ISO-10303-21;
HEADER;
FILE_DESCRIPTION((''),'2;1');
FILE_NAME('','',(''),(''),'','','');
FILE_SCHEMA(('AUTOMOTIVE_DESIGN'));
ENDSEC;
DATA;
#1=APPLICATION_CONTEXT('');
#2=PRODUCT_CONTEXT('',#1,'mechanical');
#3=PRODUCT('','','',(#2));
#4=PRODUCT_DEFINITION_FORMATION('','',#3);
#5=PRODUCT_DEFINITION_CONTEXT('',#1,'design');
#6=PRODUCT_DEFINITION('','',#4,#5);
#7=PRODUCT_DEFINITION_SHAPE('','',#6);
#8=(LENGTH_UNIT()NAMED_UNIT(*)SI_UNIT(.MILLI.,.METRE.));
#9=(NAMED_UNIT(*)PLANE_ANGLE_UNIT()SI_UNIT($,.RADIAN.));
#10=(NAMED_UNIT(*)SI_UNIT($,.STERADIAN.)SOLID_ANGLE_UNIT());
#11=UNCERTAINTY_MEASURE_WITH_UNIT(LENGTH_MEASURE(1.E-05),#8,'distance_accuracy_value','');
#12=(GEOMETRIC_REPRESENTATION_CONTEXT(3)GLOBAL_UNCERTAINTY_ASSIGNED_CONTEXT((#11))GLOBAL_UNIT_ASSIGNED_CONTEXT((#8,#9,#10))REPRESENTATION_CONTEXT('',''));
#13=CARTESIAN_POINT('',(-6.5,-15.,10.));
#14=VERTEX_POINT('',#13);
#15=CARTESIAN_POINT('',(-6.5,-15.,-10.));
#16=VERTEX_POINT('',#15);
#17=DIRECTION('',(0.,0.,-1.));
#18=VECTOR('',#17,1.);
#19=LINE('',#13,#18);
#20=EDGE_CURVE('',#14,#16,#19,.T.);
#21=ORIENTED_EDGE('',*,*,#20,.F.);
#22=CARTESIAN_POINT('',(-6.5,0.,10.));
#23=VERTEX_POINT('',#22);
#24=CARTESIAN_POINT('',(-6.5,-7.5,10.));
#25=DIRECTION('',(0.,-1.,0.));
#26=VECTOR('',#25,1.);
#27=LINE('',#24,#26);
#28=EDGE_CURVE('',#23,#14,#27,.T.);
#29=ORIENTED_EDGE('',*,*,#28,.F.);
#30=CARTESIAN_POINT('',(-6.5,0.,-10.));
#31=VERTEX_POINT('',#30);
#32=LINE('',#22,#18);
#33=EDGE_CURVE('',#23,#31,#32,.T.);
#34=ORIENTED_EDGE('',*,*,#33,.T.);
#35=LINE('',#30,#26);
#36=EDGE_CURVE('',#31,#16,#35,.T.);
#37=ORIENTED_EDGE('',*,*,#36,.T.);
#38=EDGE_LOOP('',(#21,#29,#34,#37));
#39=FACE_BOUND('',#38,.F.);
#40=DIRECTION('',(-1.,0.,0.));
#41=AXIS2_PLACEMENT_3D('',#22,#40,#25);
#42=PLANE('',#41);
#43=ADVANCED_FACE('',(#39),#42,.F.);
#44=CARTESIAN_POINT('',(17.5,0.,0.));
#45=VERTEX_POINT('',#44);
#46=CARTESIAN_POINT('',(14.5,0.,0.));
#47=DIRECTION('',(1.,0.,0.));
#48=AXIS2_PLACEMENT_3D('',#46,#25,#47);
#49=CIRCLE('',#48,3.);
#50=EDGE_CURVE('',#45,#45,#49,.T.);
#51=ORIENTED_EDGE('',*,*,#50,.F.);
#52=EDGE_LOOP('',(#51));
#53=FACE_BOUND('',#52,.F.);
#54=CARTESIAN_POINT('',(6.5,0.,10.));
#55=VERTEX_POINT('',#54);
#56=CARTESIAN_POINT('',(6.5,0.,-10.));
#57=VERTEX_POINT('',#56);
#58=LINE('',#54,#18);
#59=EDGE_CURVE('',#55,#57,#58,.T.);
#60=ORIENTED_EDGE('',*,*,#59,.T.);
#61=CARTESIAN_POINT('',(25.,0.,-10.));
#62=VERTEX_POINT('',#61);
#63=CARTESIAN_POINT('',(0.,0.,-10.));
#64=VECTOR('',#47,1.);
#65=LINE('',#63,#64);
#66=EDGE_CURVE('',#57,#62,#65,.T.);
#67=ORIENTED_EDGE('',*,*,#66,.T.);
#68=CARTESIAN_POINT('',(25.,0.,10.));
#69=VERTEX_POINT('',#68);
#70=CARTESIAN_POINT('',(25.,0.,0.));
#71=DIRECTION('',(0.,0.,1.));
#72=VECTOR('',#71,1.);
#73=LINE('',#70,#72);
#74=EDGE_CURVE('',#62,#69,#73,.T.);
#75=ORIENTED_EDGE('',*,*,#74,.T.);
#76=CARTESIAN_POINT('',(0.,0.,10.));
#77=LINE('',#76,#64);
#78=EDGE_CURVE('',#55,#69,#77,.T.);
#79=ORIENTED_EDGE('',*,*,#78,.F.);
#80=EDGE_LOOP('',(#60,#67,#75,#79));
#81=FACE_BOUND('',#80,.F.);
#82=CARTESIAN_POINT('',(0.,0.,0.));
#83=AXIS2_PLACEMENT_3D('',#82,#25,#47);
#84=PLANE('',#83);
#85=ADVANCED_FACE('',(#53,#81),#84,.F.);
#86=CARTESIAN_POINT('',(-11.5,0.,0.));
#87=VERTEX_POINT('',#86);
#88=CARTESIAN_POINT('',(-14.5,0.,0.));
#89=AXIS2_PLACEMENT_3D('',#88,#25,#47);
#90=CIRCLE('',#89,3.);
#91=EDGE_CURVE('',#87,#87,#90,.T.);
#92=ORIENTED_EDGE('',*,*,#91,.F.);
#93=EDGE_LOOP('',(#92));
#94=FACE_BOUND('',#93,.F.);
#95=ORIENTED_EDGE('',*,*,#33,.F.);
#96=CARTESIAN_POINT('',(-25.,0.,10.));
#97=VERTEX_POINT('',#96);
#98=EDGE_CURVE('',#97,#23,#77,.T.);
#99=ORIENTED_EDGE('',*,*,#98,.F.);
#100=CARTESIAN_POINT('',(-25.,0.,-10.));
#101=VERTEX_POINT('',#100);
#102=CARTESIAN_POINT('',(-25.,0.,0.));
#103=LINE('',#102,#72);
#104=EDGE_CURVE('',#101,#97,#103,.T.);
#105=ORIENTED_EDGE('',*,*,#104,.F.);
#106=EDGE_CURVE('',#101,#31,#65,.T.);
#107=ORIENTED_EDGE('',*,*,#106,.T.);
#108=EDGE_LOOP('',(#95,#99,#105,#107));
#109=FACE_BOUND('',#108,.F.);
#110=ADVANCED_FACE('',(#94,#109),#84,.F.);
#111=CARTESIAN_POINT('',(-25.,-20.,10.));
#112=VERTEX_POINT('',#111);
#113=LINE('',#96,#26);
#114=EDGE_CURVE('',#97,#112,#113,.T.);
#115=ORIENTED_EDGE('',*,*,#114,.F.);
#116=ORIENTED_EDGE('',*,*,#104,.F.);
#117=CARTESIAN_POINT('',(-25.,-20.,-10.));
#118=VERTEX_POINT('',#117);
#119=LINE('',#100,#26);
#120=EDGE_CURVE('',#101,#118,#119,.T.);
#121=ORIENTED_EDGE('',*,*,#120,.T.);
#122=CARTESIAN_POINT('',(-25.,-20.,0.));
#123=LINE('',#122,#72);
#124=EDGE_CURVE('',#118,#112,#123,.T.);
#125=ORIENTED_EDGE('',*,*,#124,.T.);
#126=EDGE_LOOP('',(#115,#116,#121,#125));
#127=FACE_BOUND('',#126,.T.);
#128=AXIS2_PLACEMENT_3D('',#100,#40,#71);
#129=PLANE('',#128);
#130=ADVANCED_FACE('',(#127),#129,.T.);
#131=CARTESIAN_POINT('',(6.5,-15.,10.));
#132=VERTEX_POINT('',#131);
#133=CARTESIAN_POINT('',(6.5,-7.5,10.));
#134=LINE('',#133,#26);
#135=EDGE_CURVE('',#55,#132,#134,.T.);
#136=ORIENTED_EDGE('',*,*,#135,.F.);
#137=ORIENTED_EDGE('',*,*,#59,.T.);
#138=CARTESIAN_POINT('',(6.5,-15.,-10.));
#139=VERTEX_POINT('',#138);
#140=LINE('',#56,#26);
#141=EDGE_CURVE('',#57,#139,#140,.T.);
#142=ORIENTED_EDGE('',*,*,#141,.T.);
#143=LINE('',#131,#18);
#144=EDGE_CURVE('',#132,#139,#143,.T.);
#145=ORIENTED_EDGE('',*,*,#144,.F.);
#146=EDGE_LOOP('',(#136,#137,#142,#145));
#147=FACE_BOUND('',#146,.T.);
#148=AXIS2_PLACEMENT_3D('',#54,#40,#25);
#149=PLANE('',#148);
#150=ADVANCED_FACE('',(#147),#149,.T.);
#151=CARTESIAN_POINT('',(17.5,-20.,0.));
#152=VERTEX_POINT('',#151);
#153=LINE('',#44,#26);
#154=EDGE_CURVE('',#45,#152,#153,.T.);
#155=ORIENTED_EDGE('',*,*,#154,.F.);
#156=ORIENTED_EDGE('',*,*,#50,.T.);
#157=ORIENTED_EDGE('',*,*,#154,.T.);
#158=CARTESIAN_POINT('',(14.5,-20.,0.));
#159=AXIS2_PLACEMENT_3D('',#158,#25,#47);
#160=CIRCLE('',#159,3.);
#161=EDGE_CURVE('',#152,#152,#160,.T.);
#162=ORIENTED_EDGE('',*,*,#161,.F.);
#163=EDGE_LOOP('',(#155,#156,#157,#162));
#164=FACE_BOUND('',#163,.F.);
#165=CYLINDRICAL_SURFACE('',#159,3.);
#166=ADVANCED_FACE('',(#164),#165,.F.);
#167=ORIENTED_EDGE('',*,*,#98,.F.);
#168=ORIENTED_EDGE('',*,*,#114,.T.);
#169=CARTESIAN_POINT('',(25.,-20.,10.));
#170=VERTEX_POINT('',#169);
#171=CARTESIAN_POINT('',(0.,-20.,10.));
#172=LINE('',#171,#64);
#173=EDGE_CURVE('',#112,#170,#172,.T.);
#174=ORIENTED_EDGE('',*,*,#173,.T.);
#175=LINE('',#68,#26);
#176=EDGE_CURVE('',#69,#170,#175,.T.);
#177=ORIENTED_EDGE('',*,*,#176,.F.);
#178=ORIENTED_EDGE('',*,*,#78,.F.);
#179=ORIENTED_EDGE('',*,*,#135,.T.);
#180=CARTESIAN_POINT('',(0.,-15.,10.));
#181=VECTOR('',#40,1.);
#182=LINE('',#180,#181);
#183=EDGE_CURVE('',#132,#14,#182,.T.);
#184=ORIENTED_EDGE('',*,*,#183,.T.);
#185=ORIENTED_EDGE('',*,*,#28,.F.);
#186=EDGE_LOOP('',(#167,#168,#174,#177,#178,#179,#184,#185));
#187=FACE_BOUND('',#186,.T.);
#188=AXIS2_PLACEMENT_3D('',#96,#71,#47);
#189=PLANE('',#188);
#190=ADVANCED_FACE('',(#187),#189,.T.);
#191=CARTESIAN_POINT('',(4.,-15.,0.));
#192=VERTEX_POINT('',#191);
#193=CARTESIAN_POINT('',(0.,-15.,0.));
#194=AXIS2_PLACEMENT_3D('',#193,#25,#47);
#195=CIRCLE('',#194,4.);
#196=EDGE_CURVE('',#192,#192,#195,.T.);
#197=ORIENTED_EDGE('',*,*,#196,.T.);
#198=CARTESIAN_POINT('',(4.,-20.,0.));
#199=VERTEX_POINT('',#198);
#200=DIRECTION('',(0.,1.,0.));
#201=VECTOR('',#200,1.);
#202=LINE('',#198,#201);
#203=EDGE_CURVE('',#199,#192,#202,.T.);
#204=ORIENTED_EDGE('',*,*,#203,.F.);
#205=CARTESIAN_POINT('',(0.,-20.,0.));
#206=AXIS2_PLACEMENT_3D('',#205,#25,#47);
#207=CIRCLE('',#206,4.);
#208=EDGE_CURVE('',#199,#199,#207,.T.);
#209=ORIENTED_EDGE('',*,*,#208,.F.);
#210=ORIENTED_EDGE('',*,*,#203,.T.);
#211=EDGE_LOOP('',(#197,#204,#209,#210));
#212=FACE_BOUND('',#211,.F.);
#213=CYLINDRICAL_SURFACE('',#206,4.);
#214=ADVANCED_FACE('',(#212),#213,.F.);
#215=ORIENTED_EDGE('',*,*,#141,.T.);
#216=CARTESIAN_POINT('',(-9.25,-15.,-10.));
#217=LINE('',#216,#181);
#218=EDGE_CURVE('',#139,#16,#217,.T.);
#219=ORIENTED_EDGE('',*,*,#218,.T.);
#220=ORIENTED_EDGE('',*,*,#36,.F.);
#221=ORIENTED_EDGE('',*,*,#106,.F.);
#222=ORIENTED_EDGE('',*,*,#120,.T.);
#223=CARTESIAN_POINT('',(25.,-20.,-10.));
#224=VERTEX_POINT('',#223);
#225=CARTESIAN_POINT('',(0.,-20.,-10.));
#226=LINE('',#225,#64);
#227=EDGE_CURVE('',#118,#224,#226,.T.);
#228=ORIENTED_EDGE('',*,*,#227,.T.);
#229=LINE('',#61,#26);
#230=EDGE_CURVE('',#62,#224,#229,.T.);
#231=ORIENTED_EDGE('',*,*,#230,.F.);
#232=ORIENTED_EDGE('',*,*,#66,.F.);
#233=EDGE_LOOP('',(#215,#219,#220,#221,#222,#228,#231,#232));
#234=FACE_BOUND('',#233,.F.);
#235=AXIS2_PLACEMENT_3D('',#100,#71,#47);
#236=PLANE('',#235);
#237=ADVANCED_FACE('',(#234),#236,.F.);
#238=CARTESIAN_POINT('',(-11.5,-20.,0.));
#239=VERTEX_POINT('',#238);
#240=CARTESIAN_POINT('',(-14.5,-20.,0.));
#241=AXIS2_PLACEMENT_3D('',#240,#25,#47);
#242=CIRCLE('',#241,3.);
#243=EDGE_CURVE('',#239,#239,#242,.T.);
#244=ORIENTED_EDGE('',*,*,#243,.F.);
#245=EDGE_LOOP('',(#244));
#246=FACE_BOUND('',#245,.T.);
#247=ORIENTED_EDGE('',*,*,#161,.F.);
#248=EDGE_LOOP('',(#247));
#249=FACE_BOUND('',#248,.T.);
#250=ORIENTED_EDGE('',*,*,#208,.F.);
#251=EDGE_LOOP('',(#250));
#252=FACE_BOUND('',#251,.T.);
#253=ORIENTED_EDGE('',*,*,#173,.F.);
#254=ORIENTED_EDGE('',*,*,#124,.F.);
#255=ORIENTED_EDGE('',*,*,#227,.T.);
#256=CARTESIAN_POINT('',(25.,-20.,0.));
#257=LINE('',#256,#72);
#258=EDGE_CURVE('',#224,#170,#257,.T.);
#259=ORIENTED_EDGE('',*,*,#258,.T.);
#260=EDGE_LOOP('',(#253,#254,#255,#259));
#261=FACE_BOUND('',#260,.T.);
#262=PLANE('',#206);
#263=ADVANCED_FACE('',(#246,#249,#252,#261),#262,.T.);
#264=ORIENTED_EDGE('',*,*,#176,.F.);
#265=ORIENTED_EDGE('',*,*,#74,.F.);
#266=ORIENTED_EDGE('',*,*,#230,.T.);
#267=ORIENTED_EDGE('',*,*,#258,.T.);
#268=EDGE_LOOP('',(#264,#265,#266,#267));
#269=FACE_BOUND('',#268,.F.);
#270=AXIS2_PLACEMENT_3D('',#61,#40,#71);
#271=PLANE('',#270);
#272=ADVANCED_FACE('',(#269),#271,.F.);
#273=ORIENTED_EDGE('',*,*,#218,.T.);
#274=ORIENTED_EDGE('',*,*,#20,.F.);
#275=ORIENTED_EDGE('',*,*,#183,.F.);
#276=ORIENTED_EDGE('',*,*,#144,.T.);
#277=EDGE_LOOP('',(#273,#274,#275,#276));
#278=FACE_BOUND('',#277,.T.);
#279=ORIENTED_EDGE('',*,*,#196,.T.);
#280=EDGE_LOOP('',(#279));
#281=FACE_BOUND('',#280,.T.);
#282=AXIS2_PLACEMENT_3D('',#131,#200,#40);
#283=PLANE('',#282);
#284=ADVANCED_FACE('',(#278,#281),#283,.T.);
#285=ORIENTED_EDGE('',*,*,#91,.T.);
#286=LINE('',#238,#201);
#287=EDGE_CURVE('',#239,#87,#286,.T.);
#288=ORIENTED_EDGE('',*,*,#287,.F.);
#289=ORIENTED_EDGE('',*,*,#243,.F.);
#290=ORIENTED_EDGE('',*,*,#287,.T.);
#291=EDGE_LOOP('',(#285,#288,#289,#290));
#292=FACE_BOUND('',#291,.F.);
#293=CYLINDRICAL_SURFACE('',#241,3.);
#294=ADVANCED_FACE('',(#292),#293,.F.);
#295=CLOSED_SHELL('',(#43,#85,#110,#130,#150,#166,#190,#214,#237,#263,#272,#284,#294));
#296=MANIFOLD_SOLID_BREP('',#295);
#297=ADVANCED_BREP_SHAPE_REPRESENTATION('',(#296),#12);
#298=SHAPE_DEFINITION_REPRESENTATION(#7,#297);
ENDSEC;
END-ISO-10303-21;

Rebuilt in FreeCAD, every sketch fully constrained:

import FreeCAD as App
import Part
import Sketcher
Q = App.Units.Quantity

doc = App.newDocument("Part")
body = doc.addObject("PartDesign::Body", "Body")

sketch1 = body.newObject("Sketcher::SketchObject", "Sketch")
sketch1.AttachmentSupport = (doc.getObject("XZ_Plane"), [""])
sketch1.MapMode = "FlatFace"
sketch1.addGeometry(Part.LineSegment(App.Vector(-25, 10, 0), App.Vector(-25, -10, 0)), False)
sketch1.addGeometry(Part.LineSegment(App.Vector(-25, -10, 0), App.Vector(25, -10, 0)), False)
sketch1.addGeometry(Part.LineSegment(App.Vector(25, -10, 0), App.Vector(25, 10, 0)), False)
sketch1.addGeometry(Part.LineSegment(App.Vector(25, 10, 0), App.Vector(-25, 10, 0)), False)
sketch1.addConstraint(Sketcher.Constraint("Coincident", 0, 2, 1, 1))
sketch1.addConstraint(Sketcher.Constraint("Coincident", 1, 2, 2, 1))
sketch1.addConstraint(Sketcher.Constraint("Coincident", 2, 2, 3, 1))
sketch1.addConstraint(Sketcher.Constraint("Coincident", 3, 2, 0, 1))
sketch1.addConstraint(Sketcher.Constraint("Vertical", 0))
sketch1.addConstraint(Sketcher.Constraint("Horizontal", 1))
sketch1.addConstraint(Sketcher.Constraint("Vertical", 2))
sketch1.addConstraint(Sketcher.Constraint("Horizontal", 3))
sketch1.addConstraint(Sketcher.Constraint("Symmetric", 0, 2, 2, 2, -1, 1))
sketch1.addConstraint(Sketcher.Constraint("DistanceX", 1, 1, 1, 2, Q("50 mm")))
sketch1.addConstraint(Sketcher.Constraint("DistanceY", 0, 2, 0, 1, Q("20 mm")))
pad1 = body.newObject("PartDesign::Pad", "Pad")
pad1.Profile = sketch1
pad1.Length = 20

sketch2 = body.newObject("Sketcher::SketchObject", "Sketch001")
sketch2.AttachmentSupport = (doc.getObject("XY_Plane"), [""])
sketch2.MapMode = "FlatFace"
sketch2.AttachmentOffset = App.Placement(App.Vector(0, 0, 10), App.Rotation())
sketch2.addGeometry(Part.LineSegment(App.Vector(6, -15, 0), App.Vector(6, 0, 0)), False)
sketch2.addGeometry(Part.LineSegment(App.Vector(6, 0, 0), App.Vector(-6, 0, 0)), False)
sketch2.addGeometry(Part.LineSegment(App.Vector(-6, 0, 0), App.Vector(-6, -15, 0)), False)
sketch2.addGeometry(Part.LineSegment(App.Vector(-6, -15, 0), App.Vector(6, -15, 0)), False)
sketch2.addConstraint(Sketcher.Constraint("Coincident", 0, 2, 1, 1))
sketch2.addConstraint(Sketcher.Constraint("Coincident", 1, 2, 2, 1))
sketch2.addConstraint(Sketcher.Constraint("Coincident", 2, 2, 3, 1))
sketch2.addConstraint(Sketcher.Constraint("Coincident", 3, 2, 0, 1))
sketch2.addConstraint(Sketcher.Constraint("Vertical", 0))
sketch2.addConstraint(Sketcher.Constraint("Horizontal", 1))
sketch2.addConstraint(Sketcher.Constraint("Vertical", 2))
sketch2.addConstraint(Sketcher.Constraint("Horizontal", 3))
sketch2.addConstraint(Sketcher.Constraint("Symmetric", 0, 2, 1, 2, -1, 1))
sketch2.addConstraint(Sketcher.Constraint("DistanceX", 1, 2, 1, 1, Q("13 mm")))
sketch2.addConstraint(Sketcher.Constraint("DistanceY", 0, 1, 0, 2, Q("15 mm")))
pocket1 = body.newObject("PartDesign::Pocket", "Pocket")
pocket1.Profile = sketch2
pocket1.Type = "ThroughAll"

sketch3 = body.newObject("Sketcher::SketchObject", "Sketch002")
sketch3.AttachmentSupport = (doc.getObject("XZ_Plane"), [""])
sketch3.MapMode = "FlatFace"
sketch3.AttachmentOffset = App.Placement(App.Vector(0, 0, 20), App.Rotation())
sketch3.addGeometry(Part.Circle(App.Vector(0, 0, 0), App.Vector(0, 0, 1), 4), False)
sketch3.addGeometry(Part.Circle(App.Vector(-14.5, 0, 0), App.Vector(0, 0, 1), 3), False)
sketch3.addGeometry(Part.Circle(App.Vector(14.5, 0, 0), App.Vector(0, 0, 1), 3), False)
sketch3.addConstraint(Sketcher.Constraint("Coincident", 0, 3, -1, 1))
sketch3.addConstraint(Sketcher.Constraint("Equal", 1, 2))
sketch3.addConstraint(Sketcher.Constraint("Symmetric", 1, 3, 2, 3, -1, 1))
sketch3.addConstraint(Sketcher.Constraint("PointOnObject", 1, 3, -1))
sketch3.addConstraint(Sketcher.Constraint("Diameter", 0, Q("8 mm")))
sketch3.addConstraint(Sketcher.Constraint("Diameter", 1, Q("6 mm")))
sketch3.addConstraint(Sketcher.Constraint("DistanceX", 1, 3, 2, 3, Q("29 mm")))
pocket2 = body.newObject("PartDesign::Pocket", "Pocket001")
pocket2.Profile = sketch3
pocket2.Length = 5

sketch4 = body.newObject("Sketcher::SketchObject", "Sketch003")
sketch4.AttachmentSupport = (doc.getObject("XZ_Plane"), [""])
sketch4.MapMode = "FlatFace"
sketch4.AttachmentOffset = App.Placement(App.Vector(0, 0, 20), App.Rotation())
sketch4.addGeometry(Part.Circle(App.Vector(0, 0, 0), App.Vector(0, 0, 1), 4), False)
sketch4.addGeometry(Part.Circle(App.Vector(-14.5, 0, 0), App.Vector(0, 0, 1), 3), False)
sketch4.addGeometry(Part.Circle(App.Vector(14.5, 0, 0), App.Vector(0, 0, 1), 3), False)
sketch4.addConstraint(Sketcher.Constraint("Coincident", 0, 3, -1, 1))
sketch4.addConstraint(Sketcher.Constraint("Equal", 1, 2))
sketch4.addConstraint(Sketcher.Constraint("Symmetric", 1, 3, 2, 3, -1, 1))
sketch4.addConstraint(Sketcher.Constraint("PointOnObject", 1, 3, -1))
sketch4.addConstraint(Sketcher.Constraint("Diameter", 0, Q("8 mm")))
sketch4.addConstraint(Sketcher.Constraint("Diameter", 1, Q("6 mm")))
sketch4.addConstraint(Sketcher.Constraint("DistanceX", 1, 3, 2, 3, Q("29 mm")))
pocket3 = body.newObject("PartDesign::Pocket", "Pocket002")
pocket3.Profile = sketch4
pocket3.Type = "ThroughAll"

doc.recompute()
